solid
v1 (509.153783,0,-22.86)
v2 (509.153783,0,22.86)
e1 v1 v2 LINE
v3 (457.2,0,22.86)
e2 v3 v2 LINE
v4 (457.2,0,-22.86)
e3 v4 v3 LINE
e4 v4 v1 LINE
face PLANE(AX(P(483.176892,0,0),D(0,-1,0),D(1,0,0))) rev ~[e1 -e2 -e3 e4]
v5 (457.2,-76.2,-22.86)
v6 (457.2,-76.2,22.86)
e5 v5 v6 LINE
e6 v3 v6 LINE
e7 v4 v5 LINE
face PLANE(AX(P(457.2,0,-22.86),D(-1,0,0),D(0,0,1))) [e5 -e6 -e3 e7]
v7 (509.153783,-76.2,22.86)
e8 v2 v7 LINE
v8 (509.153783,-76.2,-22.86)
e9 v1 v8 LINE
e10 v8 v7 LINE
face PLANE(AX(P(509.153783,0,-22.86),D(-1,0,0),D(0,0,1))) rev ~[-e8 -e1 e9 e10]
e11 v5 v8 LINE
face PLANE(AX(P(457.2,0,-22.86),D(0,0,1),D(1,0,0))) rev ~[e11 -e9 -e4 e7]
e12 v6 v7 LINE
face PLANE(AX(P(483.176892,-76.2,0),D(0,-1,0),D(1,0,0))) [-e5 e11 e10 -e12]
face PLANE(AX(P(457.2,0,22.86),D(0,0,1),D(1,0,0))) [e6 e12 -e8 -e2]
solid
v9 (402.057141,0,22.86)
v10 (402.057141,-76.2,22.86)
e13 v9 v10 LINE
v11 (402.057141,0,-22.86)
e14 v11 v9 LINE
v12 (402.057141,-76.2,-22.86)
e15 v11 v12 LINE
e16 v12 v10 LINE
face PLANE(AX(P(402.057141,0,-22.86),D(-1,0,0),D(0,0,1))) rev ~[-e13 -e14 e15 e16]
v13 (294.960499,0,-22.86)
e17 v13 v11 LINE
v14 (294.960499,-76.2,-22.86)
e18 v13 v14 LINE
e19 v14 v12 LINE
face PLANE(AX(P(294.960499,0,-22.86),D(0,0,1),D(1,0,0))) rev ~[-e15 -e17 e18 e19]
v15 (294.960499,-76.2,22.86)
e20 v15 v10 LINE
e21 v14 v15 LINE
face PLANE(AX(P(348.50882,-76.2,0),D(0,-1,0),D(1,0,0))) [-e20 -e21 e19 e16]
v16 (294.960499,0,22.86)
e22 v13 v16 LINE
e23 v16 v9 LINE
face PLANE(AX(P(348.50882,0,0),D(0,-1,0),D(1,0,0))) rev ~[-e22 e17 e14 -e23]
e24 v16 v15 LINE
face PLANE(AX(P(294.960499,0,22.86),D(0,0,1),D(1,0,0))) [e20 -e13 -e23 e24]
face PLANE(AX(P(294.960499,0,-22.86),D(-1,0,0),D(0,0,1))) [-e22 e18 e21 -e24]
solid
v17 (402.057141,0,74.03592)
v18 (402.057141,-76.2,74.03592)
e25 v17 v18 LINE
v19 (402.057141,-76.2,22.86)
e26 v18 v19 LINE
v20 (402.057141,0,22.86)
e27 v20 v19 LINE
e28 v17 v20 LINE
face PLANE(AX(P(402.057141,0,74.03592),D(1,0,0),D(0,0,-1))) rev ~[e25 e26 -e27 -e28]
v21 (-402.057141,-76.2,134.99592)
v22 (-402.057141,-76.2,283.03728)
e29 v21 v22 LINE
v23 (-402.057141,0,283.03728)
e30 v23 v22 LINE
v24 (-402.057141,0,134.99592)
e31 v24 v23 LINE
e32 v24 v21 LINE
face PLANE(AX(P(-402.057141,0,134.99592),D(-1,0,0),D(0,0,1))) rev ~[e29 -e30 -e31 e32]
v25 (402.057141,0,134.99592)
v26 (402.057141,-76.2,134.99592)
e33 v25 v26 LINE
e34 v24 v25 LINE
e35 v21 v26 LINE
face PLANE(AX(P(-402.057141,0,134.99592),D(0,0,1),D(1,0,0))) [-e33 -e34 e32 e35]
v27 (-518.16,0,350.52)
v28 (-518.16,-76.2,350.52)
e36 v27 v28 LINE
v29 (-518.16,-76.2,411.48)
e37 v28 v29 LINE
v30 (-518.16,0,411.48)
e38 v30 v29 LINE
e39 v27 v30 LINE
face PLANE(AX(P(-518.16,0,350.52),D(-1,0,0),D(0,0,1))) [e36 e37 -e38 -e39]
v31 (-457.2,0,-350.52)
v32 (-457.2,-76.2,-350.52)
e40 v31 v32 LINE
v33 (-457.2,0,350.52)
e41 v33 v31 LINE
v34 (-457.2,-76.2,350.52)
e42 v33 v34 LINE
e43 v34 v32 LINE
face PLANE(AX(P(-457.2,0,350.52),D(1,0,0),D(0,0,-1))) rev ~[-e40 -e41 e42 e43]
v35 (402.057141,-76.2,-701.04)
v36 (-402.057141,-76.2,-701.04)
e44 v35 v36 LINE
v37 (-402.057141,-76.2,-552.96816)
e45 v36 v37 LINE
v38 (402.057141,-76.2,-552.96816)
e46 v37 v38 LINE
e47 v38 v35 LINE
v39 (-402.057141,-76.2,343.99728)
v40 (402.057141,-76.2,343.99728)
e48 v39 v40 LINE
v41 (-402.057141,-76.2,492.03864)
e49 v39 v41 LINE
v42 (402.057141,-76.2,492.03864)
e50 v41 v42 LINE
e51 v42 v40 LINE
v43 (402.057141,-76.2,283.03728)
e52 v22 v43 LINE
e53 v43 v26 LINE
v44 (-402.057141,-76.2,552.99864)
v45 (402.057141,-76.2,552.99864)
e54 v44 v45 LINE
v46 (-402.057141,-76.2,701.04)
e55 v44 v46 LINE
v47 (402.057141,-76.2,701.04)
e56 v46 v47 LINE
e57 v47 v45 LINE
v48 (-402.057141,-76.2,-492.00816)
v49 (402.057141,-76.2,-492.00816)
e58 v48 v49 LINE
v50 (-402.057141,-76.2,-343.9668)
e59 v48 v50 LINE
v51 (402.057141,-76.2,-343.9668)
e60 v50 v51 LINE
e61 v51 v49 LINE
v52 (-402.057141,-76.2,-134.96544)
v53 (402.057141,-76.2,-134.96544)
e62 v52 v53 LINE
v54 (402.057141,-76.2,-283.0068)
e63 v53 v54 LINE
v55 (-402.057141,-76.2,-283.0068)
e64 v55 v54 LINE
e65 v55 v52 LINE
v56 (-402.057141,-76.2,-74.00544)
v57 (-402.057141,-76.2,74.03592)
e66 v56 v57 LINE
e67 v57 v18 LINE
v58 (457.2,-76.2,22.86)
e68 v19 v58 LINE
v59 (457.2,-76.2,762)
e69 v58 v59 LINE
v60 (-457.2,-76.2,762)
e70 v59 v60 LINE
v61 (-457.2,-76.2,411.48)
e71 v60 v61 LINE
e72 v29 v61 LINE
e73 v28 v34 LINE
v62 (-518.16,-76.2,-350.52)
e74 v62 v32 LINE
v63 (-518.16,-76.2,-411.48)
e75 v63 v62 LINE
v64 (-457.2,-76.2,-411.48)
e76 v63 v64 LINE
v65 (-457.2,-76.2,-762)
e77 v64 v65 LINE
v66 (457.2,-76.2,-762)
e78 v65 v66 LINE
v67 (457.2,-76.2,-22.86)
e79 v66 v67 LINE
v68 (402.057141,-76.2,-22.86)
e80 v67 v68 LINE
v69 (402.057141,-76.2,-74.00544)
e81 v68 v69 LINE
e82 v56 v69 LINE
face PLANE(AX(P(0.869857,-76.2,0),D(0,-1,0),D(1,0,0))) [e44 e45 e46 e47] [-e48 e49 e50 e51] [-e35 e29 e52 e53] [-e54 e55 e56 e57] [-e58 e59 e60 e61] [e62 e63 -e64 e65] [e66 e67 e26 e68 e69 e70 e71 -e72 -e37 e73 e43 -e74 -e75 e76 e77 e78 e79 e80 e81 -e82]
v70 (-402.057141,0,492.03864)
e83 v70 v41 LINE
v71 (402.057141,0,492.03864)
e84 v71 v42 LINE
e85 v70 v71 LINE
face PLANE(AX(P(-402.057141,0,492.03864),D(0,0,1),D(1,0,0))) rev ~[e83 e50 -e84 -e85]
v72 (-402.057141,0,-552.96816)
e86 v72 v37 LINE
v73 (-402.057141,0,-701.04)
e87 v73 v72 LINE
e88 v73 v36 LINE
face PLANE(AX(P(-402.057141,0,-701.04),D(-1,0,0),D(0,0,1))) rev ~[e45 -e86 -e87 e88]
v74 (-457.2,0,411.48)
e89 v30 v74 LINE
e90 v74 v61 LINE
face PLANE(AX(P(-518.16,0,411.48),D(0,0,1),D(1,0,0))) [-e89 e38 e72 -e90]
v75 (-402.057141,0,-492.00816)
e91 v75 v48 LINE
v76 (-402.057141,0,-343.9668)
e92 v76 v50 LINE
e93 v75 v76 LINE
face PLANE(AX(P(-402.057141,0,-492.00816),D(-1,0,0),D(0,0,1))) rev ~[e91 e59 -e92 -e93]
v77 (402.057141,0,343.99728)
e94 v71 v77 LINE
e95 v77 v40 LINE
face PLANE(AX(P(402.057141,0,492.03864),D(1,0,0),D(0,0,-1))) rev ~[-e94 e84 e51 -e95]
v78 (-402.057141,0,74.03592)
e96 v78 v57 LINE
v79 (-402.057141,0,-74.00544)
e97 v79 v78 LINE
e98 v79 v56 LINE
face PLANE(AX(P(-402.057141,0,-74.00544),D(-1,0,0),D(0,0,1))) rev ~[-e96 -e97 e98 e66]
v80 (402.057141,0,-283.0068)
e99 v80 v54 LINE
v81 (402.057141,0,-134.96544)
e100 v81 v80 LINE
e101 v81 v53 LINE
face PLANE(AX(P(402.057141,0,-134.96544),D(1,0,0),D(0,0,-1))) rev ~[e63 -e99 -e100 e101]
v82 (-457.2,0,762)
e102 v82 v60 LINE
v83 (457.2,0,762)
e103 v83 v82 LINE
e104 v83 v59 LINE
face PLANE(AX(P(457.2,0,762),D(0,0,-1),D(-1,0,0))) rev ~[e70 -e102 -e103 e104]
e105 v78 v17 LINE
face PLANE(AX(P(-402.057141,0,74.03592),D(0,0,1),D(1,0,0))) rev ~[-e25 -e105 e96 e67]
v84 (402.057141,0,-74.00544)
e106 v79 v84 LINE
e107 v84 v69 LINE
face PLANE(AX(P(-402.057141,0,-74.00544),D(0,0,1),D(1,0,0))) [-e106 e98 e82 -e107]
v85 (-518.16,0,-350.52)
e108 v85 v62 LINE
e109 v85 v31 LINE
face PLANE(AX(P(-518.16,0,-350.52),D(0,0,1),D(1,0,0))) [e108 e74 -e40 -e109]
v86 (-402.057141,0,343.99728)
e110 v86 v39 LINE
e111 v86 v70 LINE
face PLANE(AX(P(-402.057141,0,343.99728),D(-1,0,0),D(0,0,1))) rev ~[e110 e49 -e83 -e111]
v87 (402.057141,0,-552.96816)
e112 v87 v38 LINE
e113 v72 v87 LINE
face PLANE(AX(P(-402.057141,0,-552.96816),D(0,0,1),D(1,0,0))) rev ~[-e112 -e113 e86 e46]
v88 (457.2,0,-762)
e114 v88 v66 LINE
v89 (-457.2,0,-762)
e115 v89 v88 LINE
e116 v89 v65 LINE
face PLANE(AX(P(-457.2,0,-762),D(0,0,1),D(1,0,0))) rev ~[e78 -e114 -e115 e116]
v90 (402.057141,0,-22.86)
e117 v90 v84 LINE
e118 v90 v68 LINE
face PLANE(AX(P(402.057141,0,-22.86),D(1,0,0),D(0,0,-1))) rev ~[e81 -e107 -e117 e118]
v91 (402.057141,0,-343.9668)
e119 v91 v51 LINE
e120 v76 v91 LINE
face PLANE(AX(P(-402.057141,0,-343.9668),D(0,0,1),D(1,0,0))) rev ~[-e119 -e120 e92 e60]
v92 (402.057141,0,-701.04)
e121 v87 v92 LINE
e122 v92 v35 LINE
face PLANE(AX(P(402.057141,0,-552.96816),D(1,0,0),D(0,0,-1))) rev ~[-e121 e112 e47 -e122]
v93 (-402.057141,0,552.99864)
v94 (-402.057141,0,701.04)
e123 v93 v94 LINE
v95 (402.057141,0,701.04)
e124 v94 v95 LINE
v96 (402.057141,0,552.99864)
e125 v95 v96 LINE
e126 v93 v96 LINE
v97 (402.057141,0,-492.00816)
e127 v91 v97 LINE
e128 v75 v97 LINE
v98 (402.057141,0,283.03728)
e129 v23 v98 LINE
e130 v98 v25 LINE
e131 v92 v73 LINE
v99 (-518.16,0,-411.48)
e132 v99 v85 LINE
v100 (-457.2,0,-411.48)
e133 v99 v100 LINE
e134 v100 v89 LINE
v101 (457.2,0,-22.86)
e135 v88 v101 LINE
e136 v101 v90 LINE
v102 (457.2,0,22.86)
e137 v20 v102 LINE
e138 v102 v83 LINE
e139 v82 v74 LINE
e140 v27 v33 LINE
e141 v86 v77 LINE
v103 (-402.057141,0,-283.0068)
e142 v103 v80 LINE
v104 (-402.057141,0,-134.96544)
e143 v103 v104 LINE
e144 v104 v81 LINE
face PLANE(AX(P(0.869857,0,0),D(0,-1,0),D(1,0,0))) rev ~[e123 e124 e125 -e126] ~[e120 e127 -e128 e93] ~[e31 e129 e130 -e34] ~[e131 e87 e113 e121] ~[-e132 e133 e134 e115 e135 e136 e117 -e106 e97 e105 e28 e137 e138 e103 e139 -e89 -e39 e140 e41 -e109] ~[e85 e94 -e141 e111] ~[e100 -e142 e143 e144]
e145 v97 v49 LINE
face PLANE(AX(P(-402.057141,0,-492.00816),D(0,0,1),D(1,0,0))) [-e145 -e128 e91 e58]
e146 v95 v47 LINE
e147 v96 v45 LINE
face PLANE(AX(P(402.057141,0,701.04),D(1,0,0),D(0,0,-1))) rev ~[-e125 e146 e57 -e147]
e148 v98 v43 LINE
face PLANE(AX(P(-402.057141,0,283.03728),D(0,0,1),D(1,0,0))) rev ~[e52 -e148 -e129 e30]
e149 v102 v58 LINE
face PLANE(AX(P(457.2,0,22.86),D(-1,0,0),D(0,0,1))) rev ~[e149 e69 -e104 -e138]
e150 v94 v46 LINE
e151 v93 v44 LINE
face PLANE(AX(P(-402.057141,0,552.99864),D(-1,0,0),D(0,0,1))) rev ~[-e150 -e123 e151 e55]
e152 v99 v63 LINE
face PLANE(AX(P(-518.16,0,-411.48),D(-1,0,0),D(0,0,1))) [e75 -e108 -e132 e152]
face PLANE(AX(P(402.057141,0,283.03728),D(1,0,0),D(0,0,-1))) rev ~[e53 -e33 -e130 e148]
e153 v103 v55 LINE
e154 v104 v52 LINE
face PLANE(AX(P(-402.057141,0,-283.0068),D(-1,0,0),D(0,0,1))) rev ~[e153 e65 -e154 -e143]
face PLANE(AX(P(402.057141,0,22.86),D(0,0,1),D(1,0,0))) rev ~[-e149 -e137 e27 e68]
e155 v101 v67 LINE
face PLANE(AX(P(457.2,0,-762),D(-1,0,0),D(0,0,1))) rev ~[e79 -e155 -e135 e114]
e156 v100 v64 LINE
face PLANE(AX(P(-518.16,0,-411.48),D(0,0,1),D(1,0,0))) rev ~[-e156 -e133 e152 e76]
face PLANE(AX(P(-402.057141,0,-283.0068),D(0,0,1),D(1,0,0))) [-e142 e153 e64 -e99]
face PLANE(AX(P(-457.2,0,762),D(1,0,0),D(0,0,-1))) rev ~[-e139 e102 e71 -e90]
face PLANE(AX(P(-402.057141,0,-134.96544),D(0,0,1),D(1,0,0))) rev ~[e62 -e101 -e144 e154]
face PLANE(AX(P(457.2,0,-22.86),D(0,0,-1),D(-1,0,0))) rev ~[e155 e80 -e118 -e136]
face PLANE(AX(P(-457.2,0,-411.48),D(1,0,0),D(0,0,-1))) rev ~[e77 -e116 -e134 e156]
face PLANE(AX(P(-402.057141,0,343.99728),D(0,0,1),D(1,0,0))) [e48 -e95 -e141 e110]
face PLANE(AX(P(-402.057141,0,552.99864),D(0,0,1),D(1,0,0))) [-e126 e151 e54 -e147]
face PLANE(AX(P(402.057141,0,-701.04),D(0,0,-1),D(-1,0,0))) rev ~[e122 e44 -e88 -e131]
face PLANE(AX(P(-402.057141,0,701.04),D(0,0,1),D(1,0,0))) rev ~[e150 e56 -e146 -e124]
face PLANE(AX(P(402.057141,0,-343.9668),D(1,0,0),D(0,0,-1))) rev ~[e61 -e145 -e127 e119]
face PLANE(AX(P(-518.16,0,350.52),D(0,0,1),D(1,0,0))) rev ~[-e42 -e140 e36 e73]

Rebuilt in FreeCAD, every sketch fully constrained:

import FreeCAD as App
import Part
import Sketcher

V = App.Vector
Q = App.Units.Quantity

doc = App.newDocument("Part")
body = doc.addObject("PartDesign::Body", "Body")
body.AllowCompound = True

# Sketch on XZ plane
sketch1 = body.newObject("Sketcher::SketchObject", "Sketch")
sketch1.AttachmentSupport = (doc.getObject("XZ_Plane"), [""])
sketch1.MapMode = "FlatFace"
sketch1.addGeometry([
    Part.LineSegment(V(457, 23, 0), V(457, 762, 0)),  # 0
    Part.LineSegment(V(457, 762, 0), V(-457, 762, 0)),  # 1
    Part.LineSegment(V(-457, 762, 0), V(-457, 411, 0)),  # 2
    Part.LineSegment(V(-457, 411, 0), V(-518, 411, 0)),  # 3
    Part.LineSegment(V(-518, 411, 0), V(-518, 351, 0)),  # 4
    Part.LineSegment(V(-518, 351, 0), V(-457, 351, 0)),  # 5
    Part.LineSegment(V(-457, 351, 0), V(-457, -351, 0)),  # 6
    Part.LineSegment(V(-457, -351, 0), V(-518, -351, 0)),  # 7
    Part.LineSegment(V(-518, -351, 0), V(-518, -411, 0)),  # 8
    Part.LineSegment(V(-518, -411, 0), V(-457, -411, 0)),  # 9
    Part.LineSegment(V(-457, -411, 0), V(-457, -762, 0)),  # 10
    Part.LineSegment(V(-457, -762, 0), V(457, -762, 0)),  # 11
    Part.LineSegment(V(457, -762, 0), V(457, -23, 0)),  # 12
    Part.LineSegment(V(457, -23, 0), V(402, -23, 0)),  # 13
    Part.LineSegment(V(402, -23, 0), V(402, -74, 0)),  # 14
    Part.LineSegment(V(402, -74, 0), V(-402, -74, 0)),  # 15
    Part.LineSegment(V(-402, -74, 0), V(-402, 74, 0)),  # 16
    Part.LineSegment(V(-402, 74, 0), V(402, 74, 0)),  # 17
    Part.LineSegment(V(402, 74, 0), V(402, 23, 0)),  # 18
    Part.LineSegment(V(402, 23, 0), V(457, 23, 0)),  # 19
    Part.LineSegment(V(402, -135, 0), V(402, -283, 0)),  # 20
    Part.LineSegment(V(402, -283, 0), V(-402, -283, 0)),  # 21
    Part.LineSegment(V(-402, -283, 0), V(-402, -135, 0)),  # 22
    Part.LineSegment(V(-402, -135, 0), V(402, -135, 0)),  # 23
    Part.LineSegment(V(402, -344, 0), V(402, -492, 0)),  # 24
    Part.LineSegment(V(402, -492, 0), V(-402, -492, 0)),  # 25
    Part.LineSegment(V(-402, -492, 0), V(-402, -344, 0)),  # 26
    Part.LineSegment(V(-402, -344, 0), V(402, -344, 0)),  # 27
    Part.LineSegment(V(402, -553, 0), V(402, -701, 0)),  # 28
    Part.LineSegment(V(402, -701, 0), V(-402, -701, 0)),  # 29
    Part.LineSegment(V(-402, -701, 0), V(-402, -553, 0)),  # 30
    Part.LineSegment(V(-402, -553, 0), V(402, -553, 0)),  # 31
    Part.LineSegment(V(-402, 135, 0), V(-402, 283, 0)),  # 32
    Part.LineSegment(V(-402, 283, 0), V(402, 283, 0)),  # 33
    Part.LineSegment(V(402, 283, 0), V(402, 135, 0)),  # 34
    Part.LineSegment(V(402, 135, 0), V(-402, 135, 0)),  # 35
    Part.LineSegment(V(-402, 344, 0), V(-402, 492, 0)),  # 36
    Part.LineSegment(V(-402, 492, 0), V(402, 492, 0)),  # 37
    Part.LineSegment(V(402, 492, 0), V(402, 344, 0)),  # 38
    Part.LineSegment(V(402, 344, 0), V(-402, 344, 0)),  # 39
    Part.LineSegment(V(-402, 553, 0), V(-402, 701, 0)),  # 40
    Part.LineSegment(V(-402, 701, 0), V(402, 701, 0)),  # 41
    Part.LineSegment(V(402, 701, 0), V(402, 553, 0)),  # 42
    Part.LineSegment(V(402, 553, 0), V(-402, 553, 0)),  # 43
    Part.LineSegment(V(457, 23, 0), V(457, -23, 0)),  # 44
    Part.LineSegment(V(457, -23, 0), V(509, -23, 0)),  # 45
    Part.LineSegment(V(509, -23, 0), V(509, 23, 0)),  # 46
    Part.LineSegment(V(509, 23, 0), V(457, 23, 0)),  # 47
    Part.LineSegment(V(295, 23, 0), V(295, -23, 0)),  # 48
    Part.LineSegment(V(295, -23, 0), V(402, -23, 0)),  # 49
    Part.LineSegment(V(402, -23, 0), V(402, 23, 0)),  # 50
    Part.LineSegment(V(402, 23, 0), V(295, 23, 0)),  # 51
], False)
sketch1.addConstraint([
    Sketcher.Constraint("Coincident", 0, 2, 1, 1),
    Sketcher.Constraint("Coincident", 1, 2, 2, 1),
    Sketcher.Constraint("Coincident", 2, 2, 3, 1),
    Sketcher.Constraint("Coincident", 3, 2, 4, 1),
    Sketcher.Constraint("Coincident", 4, 2, 5, 1),
    Sketcher.Constraint("Coincident", 5, 2, 6, 1),
    Sketcher.Constraint("Coincident", 6, 2, 7, 1),
    Sketcher.Constraint("Coincident", 7, 2, 8, 1),
    Sketcher.Constraint("Coincident", 8, 2, 9, 1),
    Sketcher.Constraint("Coincident", 9, 2, 10, 1),
    Sketcher.Constraint("Coincident", 10, 2, 11, 1),
    Sketcher.Constraint("Coincident", 11, 2, 12, 1),
    Sketcher.Constraint("Coincident", 12, 2, 13, 1),
    Sketcher.Constraint("Coincident", 13, 2, 14, 1),
    Sketcher.Constraint("Coincident", 14, 2, 15, 1),
    Sketcher.Constraint("Coincident", 15, 2, 16, 1),
    Sketcher.Constraint("Coincident", 16, 2, 17, 1),
    Sketcher.Constraint("Coincident", 17, 2, 18, 1),
    Sketcher.Constraint("Coincident", 18, 2, 19, 1),
    Sketcher.Constraint("Coincident", 19, 2, 0, 1),
    Sketcher.Constraint("Coincident", 20, 2, 21, 1),
    Sketcher.Constraint("Coincident", 21, 2, 22, 1),
    Sketcher.Constraint("Coincident", 22, 2, 23, 1),
    Sketcher.Constraint("Coincident", 23, 2, 20, 1),
    Sketcher.Constraint("Coincident", 24, 2, 25, 1),
    Sketcher.Constraint("Coincident", 25, 2, 26, 1),
    Sketcher.Constraint("Coincident", 26, 2, 27, 1),
    Sketcher.Constraint("Coincident", 27, 2, 24, 1),
    Sketcher.Constraint("Coincident", 28, 2, 29, 1),
    Sketcher.Constraint("Coincident", 29, 2, 30, 1),
    Sketcher.Constraint("Coincident", 30, 2, 31, 1),
    Sketcher.Constraint("Coincident", 31, 2, 28, 1),
    Sketcher.Constraint("Coincident", 32, 2, 33, 1),
    Sketcher.Constraint("Coincident", 33, 2, 34, 1),
    Sketcher.Constraint("Coincident", 34, 2, 35, 1),
    Sketcher.Constraint("Coincident", 35, 2, 32, 1),
    Sketcher.Constraint("Coincident", 36, 2, 37, 1),
    Sketcher.Constraint("Coincident", 37, 2, 38, 1),
    Sketcher.Constraint("Coincident", 38, 2, 39, 1),
    Sketcher.Constraint("Coincident", 39, 2, 36, 1),
    Sketcher.Constraint("Coincident", 40, 2, 41, 1),
    Sketcher.Constraint("Coincident", 41, 2, 42, 1),
    Sketcher.Constraint("Coincident", 42, 2, 43, 1),
    Sketcher.Constraint("Coincident", 43, 2, 40, 1),
    Sketcher.Constraint("Coincident", 44, 2, 45, 1),
    Sketcher.Constraint("Coincident", 45, 2, 46, 1),
    Sketcher.Constraint("Coincident", 46, 2, 47, 1),
    Sketcher.Constraint("Coincident", 47, 2, 44, 1),
    Sketcher.Constraint("Coincident", 48, 2, 49, 1),
    Sketcher.Constraint("Coincident", 49, 2, 50, 1),
    Sketcher.Constraint("Coincident", 50, 2, 51, 1),
    Sketcher.Constraint("Coincident", 51, 2, 48, 1),
    Sketcher.Constraint("Vertical", 0),
    Sketcher.Constraint("Horizontal", 1),
    Sketcher.Constraint("Vertical", 2),
    Sketcher.Constraint("Horizontal", 3),
    Sketcher.Constraint("Vertical", 4),
    Sketcher.Constraint("Horizontal", 5),
    Sketcher.Constraint("Vertical", 6),
    Sketcher.Constraint("Horizontal", 7),
    Sketcher.Constraint("Vertical", 8),
    Sketcher.Constraint("Horizontal", 9),
    Sketcher.Constraint("Vertical", 10),
    Sketcher.Constraint("Horizontal", 11),
    Sketcher.Constraint("Vertical", 12),
    Sketcher.Constraint("Horizontal", 13),
    Sketcher.Constraint("Vertical", 14),
    Sketcher.Constraint("Horizontal", 15),
    Sketcher.Constraint("Vertical", 16),
    Sketcher.Constraint("Horizontal", 17),
    Sketcher.Constraint("Vertical", 18),
    Sketcher.Constraint("Horizontal", 19),
    Sketcher.Constraint("Vertical", 20),
    Sketcher.Constraint("Horizontal", 21),
    Sketcher.Constraint("Vertical", 22),
    Sketcher.Constraint("Horizontal", 23),
    Sketcher.Constraint("Vertical", 24),
    Sketcher.Constraint("Horizontal", 25),
    Sketcher.Constraint("Vertical", 26),
    Sketcher.Constraint("Horizontal", 27),
    Sketcher.Constraint("Vertical", 28),
    Sketcher.Constraint("Horizontal", 29),
    Sketcher.Constraint("Vertical", 30),
    Sketcher.Constraint("Horizontal", 31),
    Sketcher.Constraint("Vertical", 32),
    Sketcher.Constraint("Horizontal", 33),
    Sketcher.Constraint("Vertical", 34),
    Sketcher.Constraint("Horizontal", 35),
    Sketcher.Constraint("Vertical", 36),
    Sketcher.Constraint("Horizontal", 37),
    Sketcher.Constraint("Vertical", 38),
    Sketcher.Constraint("Horizontal", 39),
    Sketcher.Constraint("Vertical", 40),
    Sketcher.Constraint("Horizontal", 41),
    Sketcher.Constraint("Vertical", 42),
    Sketcher.Constraint("Horizontal", 43),
    Sketcher.Constraint("Vertical", 44),
    Sketcher.Constraint("Horizontal", 45),
    Sketcher.Constraint("Vertical", 46),
    Sketcher.Constraint("Horizontal", 47),
    Sketcher.Constraint("Vertical", 48),
    Sketcher.Constraint("Horizontal", 49),
    Sketcher.Constraint("Vertical", 50),
    Sketcher.Constraint("Horizontal", 51),
    Sketcher.Constraint("Coincident", 44, 2, 12, 2),
    Sketcher.Constraint("Coincident", 47, 2, 19, 2),
    Sketcher.Constraint("Coincident", 49, 2, 13, 2),
    Sketcher.Constraint("Coincident", 50, 2, 18, 2),
    Sketcher.Constraint("Symmetric", 0, 2, 10, 2, -1, 1),
    Sketcher.Constraint("Symmetric", 28, 2, 40, 2, -1, 1),
    Sketcher.Constraint("Symmetric", 4, 2, 7, 2, -1),
    Sketcher.Constraint("Symmetric", 2, 2, 9, 2, -1),
    Sketcher.Constraint("Vertical", 2, 2, 5, 2),
    Sketcher.Constraint("Vertical", 18, 2, 20, 2),
    Sketcher.Constraint("Vertical", 16, 2, 21, 2),
    Sketcher.Constraint("Vertical", 23, 2, 24, 2),
    Sketcher.Constraint("Vertical", 22, 2, 25, 2),
    Sketcher.Constraint("Vertical", 27, 2, 28, 2),
    Sketcher.Constraint("Vertical", 26, 2, 29, 2),
    Sketcher.Constraint("Vertical", 30, 2, 32, 2),
    Sketcher.Constraint("Vertical", 31, 2, 33, 2),
    Sketcher.Constraint("Vertical", 35, 2, 36, 2),
    Sketcher.Constraint("Vertical", 34, 2, 37, 2),
    Sketcher.Constraint("Vertical", 39, 2, 40, 2),
    Sketcher.Constraint("Vertical", 38, 2, 41, 2),
    Sketcher.Constraint("Equal", 9, 4),
    Sketcher.Constraint("Equal", 0, 12),
    Sketcher.Constraint("Equal", 16, 20),
    Sketcher.Constraint("Equal", 22, 24),
    Sketcher.Constraint("Equal", 26, 32),
    Sketcher.Constraint("Equal", 34, 36),
    Sketcher.Constraint("Equal", 38, 40),
    Sketcher.Constraint("DistanceX", 1, 2, 1, 1, Q("36 in")),
    Sketcher.Constraint("DistanceX", 3, 2, 3, 1, Q("2.4 in")),
    Sketcher.Constraint("DistanceY", 0, 1, 0, 2, Q("29.1 in")),
    Sketcher.Constraint("DistanceY", 2, 2, 2, 1, Q("13.8 in")),
    Sketcher.Constraint("DistanceY", 6, 2, 6, 1, Q("27.6 in")),
    Sketcher.Constraint("DistanceY", 28, 2, -1, 1, Q("27.6 in")),
    Sketcher.Constraint("DistanceY", 22, 2, 15, 2, Q("2.4 in")),
    Sketcher.Constraint("DistanceY", 26, 2, 21, 2, Q("2.4 in")),
    Sketcher.Constraint("DistanceY", 30, 2, 25, 2, Q("2.4 in")),
    Sketcher.Constraint("DistanceY", 17, 2, 34, 2, Q("2.4 in")),
    Sketcher.Constraint("DistanceY", 33, 2, 38, 2, Q("2.4 in")),
    Sketcher.Constraint("DistanceY", 37, 2, 42, 2, Q("2.4 in")),
    Sketcher.Constraint("DistanceY", 14, 2, 14, 1, Q("2.0136 in")),
    Sketcher.Constraint("DistanceX", 13, 2, 13, 1, Q("55.142859 mm")),
    Sketcher.Constraint("DistanceX", 49, 1, 49, 2, Q("107.096642 mm")),
    Sketcher.Constraint("DistanceX", 45, 1, 45, 2, Q("51.953783 mm")),
])
pad1 = body.newObject("PartDesign::Pad", "Pad")
pad1.Profile = sketch1
pad1.Length = Q("3 in")

doc.recompute()
